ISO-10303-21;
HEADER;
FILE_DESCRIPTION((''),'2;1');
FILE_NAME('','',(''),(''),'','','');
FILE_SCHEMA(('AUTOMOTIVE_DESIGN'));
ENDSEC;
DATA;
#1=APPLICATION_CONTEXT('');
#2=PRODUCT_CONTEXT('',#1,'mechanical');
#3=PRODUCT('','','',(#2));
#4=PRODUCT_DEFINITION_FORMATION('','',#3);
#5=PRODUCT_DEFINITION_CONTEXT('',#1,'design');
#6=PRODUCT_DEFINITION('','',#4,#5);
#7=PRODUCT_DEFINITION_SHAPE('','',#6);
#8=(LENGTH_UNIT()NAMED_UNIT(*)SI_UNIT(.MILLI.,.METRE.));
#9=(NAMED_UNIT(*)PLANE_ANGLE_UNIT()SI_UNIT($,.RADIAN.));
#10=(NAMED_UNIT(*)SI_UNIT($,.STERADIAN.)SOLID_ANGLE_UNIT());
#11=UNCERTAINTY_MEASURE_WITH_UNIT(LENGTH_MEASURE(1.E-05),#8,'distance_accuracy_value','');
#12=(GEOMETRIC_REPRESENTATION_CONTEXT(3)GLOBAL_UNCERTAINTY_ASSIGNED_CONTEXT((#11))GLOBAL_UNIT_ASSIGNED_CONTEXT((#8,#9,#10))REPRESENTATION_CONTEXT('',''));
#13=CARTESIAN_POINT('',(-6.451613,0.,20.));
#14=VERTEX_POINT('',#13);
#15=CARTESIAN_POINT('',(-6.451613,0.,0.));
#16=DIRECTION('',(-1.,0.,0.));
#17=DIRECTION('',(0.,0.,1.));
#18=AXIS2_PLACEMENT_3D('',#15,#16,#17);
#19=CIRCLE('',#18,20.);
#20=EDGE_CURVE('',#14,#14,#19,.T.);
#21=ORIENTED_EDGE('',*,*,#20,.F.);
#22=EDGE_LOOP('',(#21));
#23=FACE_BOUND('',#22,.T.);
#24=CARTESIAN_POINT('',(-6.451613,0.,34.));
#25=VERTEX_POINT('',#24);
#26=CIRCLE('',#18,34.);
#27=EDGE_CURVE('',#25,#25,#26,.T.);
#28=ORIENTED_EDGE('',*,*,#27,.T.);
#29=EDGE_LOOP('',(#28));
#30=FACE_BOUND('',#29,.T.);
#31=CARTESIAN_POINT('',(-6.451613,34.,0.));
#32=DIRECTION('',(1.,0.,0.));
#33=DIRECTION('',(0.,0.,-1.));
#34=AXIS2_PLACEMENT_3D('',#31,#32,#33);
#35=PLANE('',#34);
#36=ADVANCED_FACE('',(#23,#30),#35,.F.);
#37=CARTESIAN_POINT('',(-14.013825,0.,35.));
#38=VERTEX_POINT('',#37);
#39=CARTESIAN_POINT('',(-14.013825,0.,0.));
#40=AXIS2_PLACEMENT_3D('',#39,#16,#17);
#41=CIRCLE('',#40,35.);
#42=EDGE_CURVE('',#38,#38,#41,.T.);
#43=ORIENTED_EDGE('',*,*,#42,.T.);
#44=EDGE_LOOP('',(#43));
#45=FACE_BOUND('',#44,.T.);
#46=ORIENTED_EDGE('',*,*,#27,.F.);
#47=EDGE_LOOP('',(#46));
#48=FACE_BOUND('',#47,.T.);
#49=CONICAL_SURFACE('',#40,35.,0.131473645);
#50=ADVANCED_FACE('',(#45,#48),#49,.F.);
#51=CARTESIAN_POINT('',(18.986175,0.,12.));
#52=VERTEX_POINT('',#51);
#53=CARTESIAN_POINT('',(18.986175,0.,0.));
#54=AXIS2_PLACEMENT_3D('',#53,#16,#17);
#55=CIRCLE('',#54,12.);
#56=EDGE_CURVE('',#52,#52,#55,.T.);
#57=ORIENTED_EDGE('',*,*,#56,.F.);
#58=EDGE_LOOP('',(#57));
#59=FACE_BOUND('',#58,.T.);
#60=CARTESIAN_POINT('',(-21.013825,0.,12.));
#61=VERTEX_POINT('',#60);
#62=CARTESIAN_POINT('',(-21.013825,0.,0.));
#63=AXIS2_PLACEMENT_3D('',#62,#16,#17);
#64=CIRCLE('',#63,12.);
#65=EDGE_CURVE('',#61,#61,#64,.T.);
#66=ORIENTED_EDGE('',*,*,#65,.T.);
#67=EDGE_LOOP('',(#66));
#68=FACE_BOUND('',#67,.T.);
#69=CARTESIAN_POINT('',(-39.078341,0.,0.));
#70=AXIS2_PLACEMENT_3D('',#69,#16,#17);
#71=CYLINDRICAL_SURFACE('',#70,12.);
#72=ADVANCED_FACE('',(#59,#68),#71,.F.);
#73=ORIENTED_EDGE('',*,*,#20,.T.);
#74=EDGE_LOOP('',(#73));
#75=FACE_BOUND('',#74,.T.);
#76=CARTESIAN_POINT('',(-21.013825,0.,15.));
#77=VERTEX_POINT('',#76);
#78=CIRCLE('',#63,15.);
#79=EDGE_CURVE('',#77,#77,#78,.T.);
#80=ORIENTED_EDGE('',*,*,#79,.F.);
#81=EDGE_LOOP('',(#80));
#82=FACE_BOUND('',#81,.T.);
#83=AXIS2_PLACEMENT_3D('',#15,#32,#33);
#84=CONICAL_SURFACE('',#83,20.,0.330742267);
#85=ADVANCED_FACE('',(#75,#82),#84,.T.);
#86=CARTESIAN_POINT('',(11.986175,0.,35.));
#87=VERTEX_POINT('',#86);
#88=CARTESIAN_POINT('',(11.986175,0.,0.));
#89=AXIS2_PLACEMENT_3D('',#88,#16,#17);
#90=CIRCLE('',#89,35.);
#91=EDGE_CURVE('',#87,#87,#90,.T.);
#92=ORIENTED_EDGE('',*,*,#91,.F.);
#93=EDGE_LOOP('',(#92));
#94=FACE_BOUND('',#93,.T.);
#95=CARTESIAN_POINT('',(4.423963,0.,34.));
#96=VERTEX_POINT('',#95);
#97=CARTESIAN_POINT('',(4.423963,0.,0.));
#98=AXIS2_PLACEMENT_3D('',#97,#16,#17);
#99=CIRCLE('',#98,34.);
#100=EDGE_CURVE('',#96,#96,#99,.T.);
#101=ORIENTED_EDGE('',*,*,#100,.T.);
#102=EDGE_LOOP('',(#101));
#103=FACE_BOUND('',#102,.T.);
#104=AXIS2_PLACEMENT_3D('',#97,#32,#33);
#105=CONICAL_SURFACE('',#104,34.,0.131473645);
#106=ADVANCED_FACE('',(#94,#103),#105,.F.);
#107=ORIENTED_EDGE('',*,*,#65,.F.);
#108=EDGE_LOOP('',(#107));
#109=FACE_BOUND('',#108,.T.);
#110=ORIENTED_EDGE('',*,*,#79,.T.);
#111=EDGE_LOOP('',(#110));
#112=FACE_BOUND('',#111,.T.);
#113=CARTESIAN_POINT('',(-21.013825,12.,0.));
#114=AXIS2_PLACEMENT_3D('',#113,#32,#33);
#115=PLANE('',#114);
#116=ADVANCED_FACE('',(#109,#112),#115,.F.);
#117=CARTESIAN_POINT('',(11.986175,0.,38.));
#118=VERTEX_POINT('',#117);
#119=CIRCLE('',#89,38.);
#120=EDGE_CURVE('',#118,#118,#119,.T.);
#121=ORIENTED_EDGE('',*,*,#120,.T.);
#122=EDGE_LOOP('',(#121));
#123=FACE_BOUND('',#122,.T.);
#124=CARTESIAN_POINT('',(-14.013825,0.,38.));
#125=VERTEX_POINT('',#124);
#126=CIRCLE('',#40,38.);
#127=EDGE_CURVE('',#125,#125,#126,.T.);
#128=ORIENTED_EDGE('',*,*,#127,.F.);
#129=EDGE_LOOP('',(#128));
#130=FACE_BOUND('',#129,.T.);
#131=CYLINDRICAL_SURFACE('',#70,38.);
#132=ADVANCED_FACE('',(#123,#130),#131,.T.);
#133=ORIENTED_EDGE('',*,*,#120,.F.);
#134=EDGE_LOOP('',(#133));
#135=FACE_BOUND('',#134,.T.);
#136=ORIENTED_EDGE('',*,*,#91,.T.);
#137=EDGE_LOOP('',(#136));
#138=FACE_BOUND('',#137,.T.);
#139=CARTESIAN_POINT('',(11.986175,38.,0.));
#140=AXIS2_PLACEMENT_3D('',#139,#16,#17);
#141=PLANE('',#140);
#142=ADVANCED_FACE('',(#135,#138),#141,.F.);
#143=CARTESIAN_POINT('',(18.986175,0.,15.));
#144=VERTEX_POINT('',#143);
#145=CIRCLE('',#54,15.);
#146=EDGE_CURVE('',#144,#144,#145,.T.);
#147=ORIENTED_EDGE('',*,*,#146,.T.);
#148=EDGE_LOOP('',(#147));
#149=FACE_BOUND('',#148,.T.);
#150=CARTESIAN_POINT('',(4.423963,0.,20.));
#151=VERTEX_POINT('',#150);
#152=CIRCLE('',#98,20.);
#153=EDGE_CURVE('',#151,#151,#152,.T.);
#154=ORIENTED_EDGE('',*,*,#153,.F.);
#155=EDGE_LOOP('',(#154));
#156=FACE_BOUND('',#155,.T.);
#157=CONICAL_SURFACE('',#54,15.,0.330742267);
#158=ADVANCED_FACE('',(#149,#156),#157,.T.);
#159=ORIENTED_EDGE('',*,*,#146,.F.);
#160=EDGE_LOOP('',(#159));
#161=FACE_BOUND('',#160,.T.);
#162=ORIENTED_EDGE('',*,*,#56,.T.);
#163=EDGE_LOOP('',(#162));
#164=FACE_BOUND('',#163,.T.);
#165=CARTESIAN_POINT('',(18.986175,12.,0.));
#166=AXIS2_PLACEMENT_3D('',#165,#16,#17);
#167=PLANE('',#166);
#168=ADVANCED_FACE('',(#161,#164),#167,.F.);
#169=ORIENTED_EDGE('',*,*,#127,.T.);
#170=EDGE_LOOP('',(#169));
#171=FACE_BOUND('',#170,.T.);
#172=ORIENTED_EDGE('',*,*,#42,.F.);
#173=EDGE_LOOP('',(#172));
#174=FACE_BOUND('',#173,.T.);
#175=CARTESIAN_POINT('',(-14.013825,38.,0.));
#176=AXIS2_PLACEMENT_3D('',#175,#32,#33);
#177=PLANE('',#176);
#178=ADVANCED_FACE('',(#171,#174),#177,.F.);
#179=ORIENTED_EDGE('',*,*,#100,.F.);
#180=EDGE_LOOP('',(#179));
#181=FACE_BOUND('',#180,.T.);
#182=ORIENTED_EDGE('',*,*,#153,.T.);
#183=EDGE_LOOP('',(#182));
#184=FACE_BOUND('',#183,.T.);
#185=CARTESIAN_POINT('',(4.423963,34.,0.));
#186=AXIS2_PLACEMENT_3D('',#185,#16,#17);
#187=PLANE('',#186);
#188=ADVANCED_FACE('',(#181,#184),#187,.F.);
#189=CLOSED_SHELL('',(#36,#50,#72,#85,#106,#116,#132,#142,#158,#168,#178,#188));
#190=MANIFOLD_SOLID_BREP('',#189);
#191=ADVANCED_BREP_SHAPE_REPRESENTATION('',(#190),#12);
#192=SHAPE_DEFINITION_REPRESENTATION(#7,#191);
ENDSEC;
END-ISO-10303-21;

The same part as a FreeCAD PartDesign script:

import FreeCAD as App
import Part
import Sketcher
from FreeCAD import Vector


def add_polygon(sketch, points):
    """Adds a closed chain of lines whose ends are joined by coincident constraints."""
    first, n = sketch.GeometryCount, len(points)
    for a, b in zip(points, points[1:] + points[:1]):
        sketch.addGeometry(Part.LineSegment(App.Vector(*a, 0), App.Vector(*b, 0)), False)
    for i in range(n):
        sketch.addConstraint(Sketcher.Constraint("Coincident", first + i, 2, first + (i + 1) % n, 1))

doc = App.newDocument("Part")
params = doc.addObject("Spreadsheet::Sheet", "Params")
for row, (alias, value) in enumerate([
    ("sketch1_width", "40 mm"),
    ("sketch1_width2", "26 mm"),
    ("sketch1_height", "3 mm"),
    ("sketch1_height2", "14 mm"),
    ("revolution_angle", "360 deg"),
], start=1):
    params.set(f"A{row}", alias)
    params.set(f"B{row}", "=" + value)
    params.setAlias(f"B{row}", alias)

body = doc.addObject("PartDesign::Body", "Body")

sketch1 = body.newObject("Sketcher::SketchObject", "Sketch")
sketch1.AttachmentSupport = (doc.getObject("XY_Plane"), [""])
sketch1.MapMode = "FlatFace"
add_polygon(sketch1, [(-21, 12), (19, 12), (19, 15), (4.4, 20), (4.4, 34), (12, 35), (12, 38), (-14, 38), (-14, 35), (-6.5, 34), (-6.5, 20), (-21, 15)])
sketch1.addConstraint([
    Sketcher.Constraint("Horizontal", 0),
    Sketcher.Constraint("Vertical", 1),
    Sketcher.Constraint("Vertical", 3),
    Sketcher.Constraint("Vertical", 5),
    Sketcher.Constraint("Horizontal", 6),
    Sketcher.Constraint("Vertical", 7),
    Sketcher.Constraint("Vertical", 9),
    Sketcher.Constraint("Vertical", 11),
    Sketcher.Constraint("Horizontal", 4, 2, 7, 2),
    Sketcher.Constraint("Horizontal", 3, 2, 8, 2),
    Sketcher.Constraint("Horizontal", 2, 2, 9, 2),
    Sketcher.Constraint("Horizontal", 1, 2, 10, 2),
    Sketcher.Constraint("Equal", 1, 5),
    Sketcher.Constraint("Equal", 4, 8),
    Sketcher.Constraint("Equal", 2, 10),
    Sketcher.Constraint("DistanceX", 0, 1, 0, 2, 40.0),
    Sketcher.Constraint("DistanceX", 6, 2, 6, 1, 26.0),
    Sketcher.Constraint("DistanceY", 1, 1, 1, 2, 3.0),
    Sketcher.Constraint("DistanceY", 3, 1, 3, 2, 14.0),
    Sketcher.Constraint("DistanceY", -1, 1, 0, 2, 12.0),
    Sketcher.Constraint("DistanceY", -1, 1, 2, 2, 20.0),
    Sketcher.Constraint("DistanceY", -1, 1, 4, 2, 35.0),
    Sketcher.Constraint("Distance", 2, 15.396689),
    Sketcher.Constraint("DistanceX", -1, 1, 0, 2, 18.986175),
])
sketch1.setExpression("Constraints[27]", "Params.sketch1_width")
sketch1.setExpression("Constraints[28]", "Params.sketch1_width2")
sketch1.setExpression("Constraints[29]", "Params.sketch1_height")
sketch1.setExpression("Constraints[30]", "Params.sketch1_height2")
revolution = body.newObject("PartDesign::Revolution", "Revolution")
revolution.Profile = sketch1
revolution.ReferenceAxis = (sketch1, ["H_Axis"])
revolution.setExpression("Angle", "Params.revolution_angle")

doc.recompute()
